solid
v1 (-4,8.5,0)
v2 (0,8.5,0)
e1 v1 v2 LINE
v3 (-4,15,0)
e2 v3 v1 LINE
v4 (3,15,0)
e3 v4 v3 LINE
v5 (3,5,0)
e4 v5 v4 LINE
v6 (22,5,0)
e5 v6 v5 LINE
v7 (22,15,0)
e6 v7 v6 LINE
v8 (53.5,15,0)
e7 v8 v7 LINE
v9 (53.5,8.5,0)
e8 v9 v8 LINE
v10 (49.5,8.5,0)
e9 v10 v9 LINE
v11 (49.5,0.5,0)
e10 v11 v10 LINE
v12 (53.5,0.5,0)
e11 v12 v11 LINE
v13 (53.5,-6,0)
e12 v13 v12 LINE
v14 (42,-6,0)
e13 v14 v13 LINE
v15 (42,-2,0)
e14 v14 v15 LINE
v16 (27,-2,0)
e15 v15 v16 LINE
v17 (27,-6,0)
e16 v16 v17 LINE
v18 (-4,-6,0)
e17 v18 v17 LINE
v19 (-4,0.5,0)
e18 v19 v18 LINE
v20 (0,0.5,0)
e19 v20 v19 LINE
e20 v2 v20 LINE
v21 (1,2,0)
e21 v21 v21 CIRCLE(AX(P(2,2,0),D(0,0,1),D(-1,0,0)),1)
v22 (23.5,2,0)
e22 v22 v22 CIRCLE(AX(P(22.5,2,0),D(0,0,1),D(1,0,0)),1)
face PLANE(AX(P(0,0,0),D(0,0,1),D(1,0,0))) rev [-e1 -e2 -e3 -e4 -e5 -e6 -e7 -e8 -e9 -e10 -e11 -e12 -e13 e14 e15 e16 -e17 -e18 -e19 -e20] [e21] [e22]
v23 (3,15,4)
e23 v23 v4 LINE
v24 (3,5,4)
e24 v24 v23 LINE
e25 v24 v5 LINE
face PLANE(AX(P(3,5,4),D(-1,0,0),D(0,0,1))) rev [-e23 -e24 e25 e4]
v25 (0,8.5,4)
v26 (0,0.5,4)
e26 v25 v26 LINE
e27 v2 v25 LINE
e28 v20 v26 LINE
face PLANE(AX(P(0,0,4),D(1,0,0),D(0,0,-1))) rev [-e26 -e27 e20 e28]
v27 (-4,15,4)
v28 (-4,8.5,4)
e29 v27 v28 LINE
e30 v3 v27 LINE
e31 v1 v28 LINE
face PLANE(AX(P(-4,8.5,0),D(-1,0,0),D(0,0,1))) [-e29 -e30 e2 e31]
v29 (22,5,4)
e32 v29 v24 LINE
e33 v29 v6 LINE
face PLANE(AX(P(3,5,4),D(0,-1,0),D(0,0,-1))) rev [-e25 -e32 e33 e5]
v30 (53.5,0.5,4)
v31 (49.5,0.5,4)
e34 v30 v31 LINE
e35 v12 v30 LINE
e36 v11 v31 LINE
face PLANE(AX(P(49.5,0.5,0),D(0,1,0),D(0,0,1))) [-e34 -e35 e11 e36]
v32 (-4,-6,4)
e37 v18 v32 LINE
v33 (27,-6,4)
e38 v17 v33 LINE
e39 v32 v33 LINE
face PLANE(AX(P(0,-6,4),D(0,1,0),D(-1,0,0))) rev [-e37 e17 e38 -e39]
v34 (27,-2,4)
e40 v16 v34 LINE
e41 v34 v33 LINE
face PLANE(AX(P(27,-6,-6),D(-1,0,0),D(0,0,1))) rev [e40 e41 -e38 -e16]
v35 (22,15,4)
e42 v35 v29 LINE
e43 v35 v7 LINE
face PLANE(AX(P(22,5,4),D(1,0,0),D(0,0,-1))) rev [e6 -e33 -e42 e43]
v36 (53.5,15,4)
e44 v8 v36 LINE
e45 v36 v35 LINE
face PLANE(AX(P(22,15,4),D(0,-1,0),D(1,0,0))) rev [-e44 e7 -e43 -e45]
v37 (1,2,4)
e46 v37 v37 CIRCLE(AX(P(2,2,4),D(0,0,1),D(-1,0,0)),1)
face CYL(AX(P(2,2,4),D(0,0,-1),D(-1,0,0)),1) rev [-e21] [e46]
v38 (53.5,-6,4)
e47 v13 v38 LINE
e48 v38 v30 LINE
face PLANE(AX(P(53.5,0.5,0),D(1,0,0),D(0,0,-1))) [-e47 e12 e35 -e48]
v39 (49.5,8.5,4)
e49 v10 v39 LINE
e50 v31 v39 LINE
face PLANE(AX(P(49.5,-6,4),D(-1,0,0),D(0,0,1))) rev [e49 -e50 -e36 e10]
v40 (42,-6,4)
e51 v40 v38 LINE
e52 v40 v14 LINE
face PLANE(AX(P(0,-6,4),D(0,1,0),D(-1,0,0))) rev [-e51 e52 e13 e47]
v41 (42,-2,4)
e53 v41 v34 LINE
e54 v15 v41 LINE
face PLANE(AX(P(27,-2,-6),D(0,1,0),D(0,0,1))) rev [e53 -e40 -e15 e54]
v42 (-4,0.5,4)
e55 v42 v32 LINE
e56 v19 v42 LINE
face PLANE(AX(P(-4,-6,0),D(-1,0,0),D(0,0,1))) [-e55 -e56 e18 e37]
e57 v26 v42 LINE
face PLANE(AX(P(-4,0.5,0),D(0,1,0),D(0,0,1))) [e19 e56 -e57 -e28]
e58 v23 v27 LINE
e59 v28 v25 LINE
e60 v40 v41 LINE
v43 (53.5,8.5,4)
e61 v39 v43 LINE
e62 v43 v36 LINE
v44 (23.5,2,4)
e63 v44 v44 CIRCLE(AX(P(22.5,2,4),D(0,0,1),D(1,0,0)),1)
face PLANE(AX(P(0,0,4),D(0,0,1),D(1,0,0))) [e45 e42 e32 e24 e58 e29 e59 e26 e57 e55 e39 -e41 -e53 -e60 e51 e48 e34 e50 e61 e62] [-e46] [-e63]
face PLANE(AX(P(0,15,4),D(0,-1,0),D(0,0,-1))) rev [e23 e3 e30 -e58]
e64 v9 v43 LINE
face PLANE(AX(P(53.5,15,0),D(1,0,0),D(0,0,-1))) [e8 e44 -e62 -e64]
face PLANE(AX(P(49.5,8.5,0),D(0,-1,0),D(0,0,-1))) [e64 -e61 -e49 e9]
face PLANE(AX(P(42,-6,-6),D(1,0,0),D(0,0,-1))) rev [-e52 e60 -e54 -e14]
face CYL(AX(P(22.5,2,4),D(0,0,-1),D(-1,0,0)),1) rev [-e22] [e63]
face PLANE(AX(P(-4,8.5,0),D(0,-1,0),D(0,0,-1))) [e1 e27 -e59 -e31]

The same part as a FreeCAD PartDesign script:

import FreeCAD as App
import Part
import Sketcher
from FreeCAD import Vector

doc = App.newDocument("Part")
body = doc.addObject("PartDesign::Body", "Body")

# Sketch on XY plane
sketch1 = body.newObject("Sketcher::SketchObject", "Sketch")
sketch1.AttachmentSupport = (doc.getObject("XY_Plane"), [""])
sketch1.MapMode = "FlatFace"
sketch1.addGeometry(Part.LineSegment(Vector(0, 15, 0), Vector(0, -6, 0)), False)
sketch1.addGeometry(Part.LineSegment(Vector(0, -6, 0), Vector(49.5, -6, 0)), False)
sketch1.addGeometry(Part.LineSegment(Vector(49.5, -6, 0), Vector(49.5, 15, 0)), False)
sketch1.addGeometry(Part.LineSegment(Vector(49.5, 15, 0), Vector(22, 15, 0)), False)
sketch1.addGeometry(Part.LineSegment(Vector(22, 15, 0), Vector(22, 5, 0)), False)
sketch1.addGeometry(Part.LineSegment(Vector(22, 5, 0), Vector(3, 5, 0)), False)
sketch1.addGeometry(Part.LineSegment(Vector(3, 5, 0), Vector(3, 15, 0)), False)
sketch1.addGeometry(Part.LineSegment(Vector(3, 15, 0), Vector(0, 15, 0)), False)
sketch1.addGeometry(Part.Circle(Vector(22.5, 2, 0), Vector(0, 0, 1), 1), False)
sketch1.addGeometry(Part.Circle(Vector(2, 2, 0), Vector(0, 0, 1), 1), False)
sketch1.addConstraint(Sketcher.Constraint("Coincident", 0, 2, 1, 1))
sketch1.addConstraint(Sketcher.Constraint("Coincident", 1, 2, 2, 1))
sketch1.addConstraint(Sketcher.Constraint("Coincident", 2, 2, 3, 1))
sketch1.addConstraint(Sketcher.Constraint("Coincident", 3, 2, 4, 1))
sketch1.addConstraint(Sketcher.Constraint("Coincident", 4, 2, 5, 1))
sketch1.addConstraint(Sketcher.Constraint("Coincident", 5, 2, 6, 1))
sketch1.addConstraint(Sketcher.Constraint("Coincident", 6, 2, 7, 1))
sketch1.addConstraint(Sketcher.Constraint("Coincident", 7, 2, 0, 1))
sketch1.addConstraint(Sketcher.Constraint("Vertical", 0))
sketch1.addConstraint(Sketcher.Constraint("Horizontal", 1))
sketch1.addConstraint(Sketcher.Constraint("Vertical", 2))
sketch1.addConstraint(Sketcher.Constraint("Horizontal", 3))
sketch1.addConstraint(Sketcher.Constraint("Vertical", 4))
sketch1.addConstraint(Sketcher.Constraint("Horizontal", 5))
sketch1.addConstraint(Sketcher.Constraint("Vertical", 6))
sketch1.addConstraint(Sketcher.Constraint("Horizontal", 7))
sketch1.addConstraint(Sketcher.Constraint("Equal", 8, 9))
sketch1.addConstraint(Sketcher.Constraint("PointOnObject", 0, 2, -2))
sketch1.addConstraint(Sketcher.Constraint("Horizontal", 8, 3, 9, 3))
sketch1.addConstraint(Sketcher.Constraint("Horizontal", 3, 2, 6, 2))
sketch1.addConstraint(Sketcher.Constraint("Diameter", 8, 2.0))
sketch1.addConstraint(Sketcher.Constraint("DistanceX", 5, 2, 5, 1, 19.0))
sketch1.addConstraint(Sketcher.Constraint("DistanceX", 7, 2, 7, 1, 3.0))
sketch1.addConstraint(Sketcher.Constraint("DistanceY", 0, 2, 0, 1, 21.0))
sketch1.addConstraint(Sketcher.Constraint("DistanceY", 4, 2, 4, 1, 10.0))
sketch1.addConstraint(Sketcher.Constraint("DistanceX", 1, 1, 1, 2, 49.5))
sketch1.addConstraint(Sketcher.Constraint("DistanceY", -1, 1, 8, 3, 2.0))
sketch1.addConstraint(Sketcher.Constraint("DistanceX", -1, 1, 9, 3, 2.0))
sketch1.addConstraint(Sketcher.Constraint("DistanceY", 0, 2, -1, 1, 6.0))
sketch1.addConstraint(Sketcher.Constraint("DistanceX", 8, 3, 1, 2, 27.0))
pad1 = body.newObject("PartDesign::Pad", "Pad")
pad1.Profile = sketch1
pad1.Length = 4

# Sketch on XY plane
sketch2 = body.newObject("Sketcher::SketchObject", "Sketch001")
sketch2.AttachmentSupport = (doc.getObject("XY_Plane"), [""])
sketch2.MapMode = "FlatFace"
sketch2.AttachmentOffset = App.Placement(Vector(0, 0, 4), App.Rotation())
sketch2.addGeometry(Part.LineSegment(Vector(27, -2, 0), Vector(27, -6, 0)), False)
sketch2.addGeometry(Part.LineSegment(Vector(27, -6, 0), Vector(42, -6, 0)), False)
sketch2.addGeometry(Part.LineSegment(Vector(42, -6, 0), Vector(42, -2, 0)), False)
sketch2.addGeometry(Part.LineSegment(Vector(42, -2, 0), Vector(27, -2, 0)), False)
sketch2.addConstraint(Sketcher.Constraint("Coincident", 0, 2, 1, 1))
sketch2.addConstraint(Sketcher.Constraint("Coincident", 1, 2, 2, 1))
sketch2.addConstraint(Sketcher.Constraint("Coincident", 2, 2, 3, 1))
sketch2.addConstraint(Sketcher.Constraint("Coincident", 3, 2, 0, 1))
sketch2.addConstraint(Sketcher.Constraint("Vertical", 0))
sketch2.addConstraint(Sketcher.Constraint("Horizontal", 1))
sketch2.addConstraint(Sketcher.Constraint("Vertical", 2))
sketch2.addConstraint(Sketcher.Constraint("Horizontal", 3))
sketch2.addConstraint(Sketcher.Constraint("DistanceX", 1, 1, 1, 2, 15.0))
sketch2.addConstraint(Sketcher.Constraint("DistanceY", 0, 2, 0, 1, 4.0))
sketch2.addConstraint(Sketcher.Constraint("DistanceX", -1, 1, 0, 2, 27.0))
sketch2.addConstraint(Sketcher.Constraint("DistanceY", 0, 2, -1, 1, 6.0))
pocket1 = body.newObject("PartDesign::Pocket", "Pocket")
pocket1.Profile = sketch2
pocket1.Length = 10

# Sketch on XY plane
sketch3 = body.newObject("Sketcher::SketchObject", "Sketch002")
sketch3.AttachmentSupport = (doc.getObject("XY_Plane"), [""])
sketch3.MapMode = "FlatFace"
sketch3.AttachmentOffset = App.Placement(Vector(0, 0, 4), App.Rotation())
sketch3.addGeometry(Part.LineSegment(Vector(-4, 0.5, 0), Vector(-4, -6, 0)), False)
sketch3.addGeometry(Part.LineSegment(Vector(-4, -6, 0), Vector(0, -6, 0)), False)
sketch3.addGeometry(Part.LineSegment(Vector(0, -6, 0), Vector(0, 0.5, 0)), False)
sketch3.addGeometry(Part.LineSegment(Vector(0, 0.5, 0), Vector(-4, 0.5, 0)), False)
sketch3.addGeometry(Part.LineSegment(Vector(-4, 15, 0), Vector(-4, 8.5, 0)), False)
sketch3.addGeometry(Part.LineSegment(Vector(-4, 8.5, 0), Vector(0, 8.5, 0)), False)
sketch3.addGeometry(Part.LineSegment(Vector(0, 8.5, 0), Vector(0, 15, 0)), False)
sketch3.addGeometry(Part.LineSegment(Vector(0, 15, 0), Vector(-4, 15, 0)), False)
sketch3.addGeometry(Part.LineSegment(Vector(49.5, 15, 0), Vector(49.5, 8.5, 0)), False)
sketch3.addGeometry(Part.LineSegment(Vector(49.5, 8.5, 0), Vector(53.5, 8.5, 0)), False)
sketch3.addGeometry(Part.LineSegment(Vector(53.5, 8.5, 0), Vector(53.5, 15, 0)), False)
sketch3.addGeometry(Part.LineSegment(Vector(53.5, 15, 0), Vector(49.5, 15, 0)), False)
sketch3.addGeometry(Part.LineSegment(Vector(49.5, 0.5, 0), Vector(49.5, -6, 0)), False)
sketch3.addGeometry(Part.LineSegment(Vector(49.5, -6, 0), Vector(53.5, -6, 0)), False)
sketch3.addGeometry(Part.LineSegment(Vector(53.5, -6, 0), Vector(53.5, 0.5, 0)), False)
sketch3.addGeometry(Part.LineSegment(Vector(53.5, 0.5, 0), Vector(49.5, 0.5, 0)), False)
sketch3.addConstraint(Sketcher.Constraint("Coincident", 0, 2, 1, 1))
sketch3.addConstraint(Sketcher.Constraint("Coincident", 1, 2, 2, 1))
sketch3.addConstraint(Sketcher.Constraint("Coincident", 2, 2, 3, 1))
sketch3.addConstraint(Sketcher.Constraint("Coincident", 3, 2, 0, 1))
sketch3.addConstraint(Sketcher.Constraint("Coincident", 4, 2, 5, 1))
sketch3.addConstraint(Sketcher.Constraint("Coincident", 5, 2, 6, 1))
sketch3.addConstraint(Sketcher.Constraint("Coincident", 6, 2, 7, 1))
sketch3.addConstraint(Sketcher.Constraint("Coincident", 7, 2, 4, 1))
sketch3.addConstraint(Sketcher.Constraint("Coincident", 8, 2, 9, 1))
sketch3.addConstraint(Sketcher.Constraint("Coincident", 9, 2, 10, 1))
sketch3.addConstraint(Sketcher.Constraint("Coincident", 10, 2, 11, 1))
sketch3.addConstraint(Sketcher.Constraint("Coincident", 11, 2, 8, 1))
sketch3.addConstraint(Sketcher.Constraint("Coincident", 12, 2, 13, 1))
sketch3.addConstraint(Sketcher.Constraint("Coincident", 13, 2, 14, 1))
sketch3.addConstraint(Sketcher.Constraint("Coincident", 14, 2, 15, 1))
sketch3.addConstraint(Sketcher.Constraint("Coincident", 15, 2, 12, 1))
sketch3.addConstraint(Sketcher.Constraint("Vertical", 0))
sketch3.addConstraint(Sketcher.Constraint("Horizontal", 1))
sketch3.addConstraint(Sketcher.Constraint("Vertical", 2))
sketch3.addConstraint(Sketcher.Constraint("Horizontal", 3))
sketch3.addConstraint(Sketcher.Constraint("Vertical", 4))
sketch3.addConstraint(Sketcher.Constraint("Horizontal", 5))
sketch3.addConstraint(Sketcher.Constraint("Vertical", 6))
sketch3.addConstraint(Sketcher.Constraint("Horizontal", 7))
sketch3.addConstraint(Sketcher.Constraint("Vertical", 8))
sketch3.addConstraint(Sketcher.Constraint("Horizontal", 9))
sketch3.addConstraint(Sketcher.Constraint("Vertical", 10))
sketch3.addConstraint(Sketcher.Constraint("Horizontal", 11))
sketch3.addConstraint(Sketcher.Constraint("Vertical", 12))
sketch3.addConstraint(Sketcher.Constraint("Horizontal", 13))
sketch3.addConstraint(Sketcher.Constraint("Vertical", 14))
sketch3.addConstraint(Sketcher.Constraint("Horizontal", 15))
sketch3.addConstraint(Sketcher.Constraint("PointOnObject", 1, 2, -2))
sketch3.addConstraint(Sketcher.Constraint("PointOnObject", 5, 2, -2))
sketch3.addConstraint(Sketcher.Constraint("Horizontal", 5, 2, 8, 2))
sketch3.addConstraint(Sketcher.Constraint("Horizontal", 7, 2, 10, 2))
sketch3.addConstraint(Sketcher.Constraint("Horizontal", 1, 2, 12, 2))
sketch3.addConstraint(Sketcher.Constraint("Horizontal", 3, 2, 14, 2))
sketch3.addConstraint(Sketcher.Constraint("Vertical", 3, 2, 4, 2))
sketch3.addConstraint(Sketcher.Constraint("Vertical", 11, 2, 12, 2))
sketch3.addConstraint(Sketcher.Constraint("Vertical", 10, 2, 13, 2))
sketch3.addConstraint(Sketcher.Constraint("Equal", 7, 9))
sketch3.addConstraint(Sketcher.Constraint("Equal", 2, 4))
sketch3.addConstraint(Sketcher.Constraint("DistanceX", 1, 1, 1, 2, 4.0))
sketch3.addConstraint(Sketcher.Constraint("DistanceY", 0, 2, 0, 1, 6.5))
sketch3.addConstraint(Sketcher.Constraint("DistanceY", 0, 2, -1, 1, 6.0))
sketch3.addConstraint(Sketcher.Constraint("DistanceY", -1, 1, 6, 2, 15.0))
sketch3.addConstraint(Sketcher.Constraint("DistanceX", -1, 1, 8, 2, 49.5))
pad2 = body.newObject("PartDesign::Pad", "Pad001")
pad2.Profile = sketch3
pad2.Length = 4
pad2.Reversed = True

doc.recompute()
